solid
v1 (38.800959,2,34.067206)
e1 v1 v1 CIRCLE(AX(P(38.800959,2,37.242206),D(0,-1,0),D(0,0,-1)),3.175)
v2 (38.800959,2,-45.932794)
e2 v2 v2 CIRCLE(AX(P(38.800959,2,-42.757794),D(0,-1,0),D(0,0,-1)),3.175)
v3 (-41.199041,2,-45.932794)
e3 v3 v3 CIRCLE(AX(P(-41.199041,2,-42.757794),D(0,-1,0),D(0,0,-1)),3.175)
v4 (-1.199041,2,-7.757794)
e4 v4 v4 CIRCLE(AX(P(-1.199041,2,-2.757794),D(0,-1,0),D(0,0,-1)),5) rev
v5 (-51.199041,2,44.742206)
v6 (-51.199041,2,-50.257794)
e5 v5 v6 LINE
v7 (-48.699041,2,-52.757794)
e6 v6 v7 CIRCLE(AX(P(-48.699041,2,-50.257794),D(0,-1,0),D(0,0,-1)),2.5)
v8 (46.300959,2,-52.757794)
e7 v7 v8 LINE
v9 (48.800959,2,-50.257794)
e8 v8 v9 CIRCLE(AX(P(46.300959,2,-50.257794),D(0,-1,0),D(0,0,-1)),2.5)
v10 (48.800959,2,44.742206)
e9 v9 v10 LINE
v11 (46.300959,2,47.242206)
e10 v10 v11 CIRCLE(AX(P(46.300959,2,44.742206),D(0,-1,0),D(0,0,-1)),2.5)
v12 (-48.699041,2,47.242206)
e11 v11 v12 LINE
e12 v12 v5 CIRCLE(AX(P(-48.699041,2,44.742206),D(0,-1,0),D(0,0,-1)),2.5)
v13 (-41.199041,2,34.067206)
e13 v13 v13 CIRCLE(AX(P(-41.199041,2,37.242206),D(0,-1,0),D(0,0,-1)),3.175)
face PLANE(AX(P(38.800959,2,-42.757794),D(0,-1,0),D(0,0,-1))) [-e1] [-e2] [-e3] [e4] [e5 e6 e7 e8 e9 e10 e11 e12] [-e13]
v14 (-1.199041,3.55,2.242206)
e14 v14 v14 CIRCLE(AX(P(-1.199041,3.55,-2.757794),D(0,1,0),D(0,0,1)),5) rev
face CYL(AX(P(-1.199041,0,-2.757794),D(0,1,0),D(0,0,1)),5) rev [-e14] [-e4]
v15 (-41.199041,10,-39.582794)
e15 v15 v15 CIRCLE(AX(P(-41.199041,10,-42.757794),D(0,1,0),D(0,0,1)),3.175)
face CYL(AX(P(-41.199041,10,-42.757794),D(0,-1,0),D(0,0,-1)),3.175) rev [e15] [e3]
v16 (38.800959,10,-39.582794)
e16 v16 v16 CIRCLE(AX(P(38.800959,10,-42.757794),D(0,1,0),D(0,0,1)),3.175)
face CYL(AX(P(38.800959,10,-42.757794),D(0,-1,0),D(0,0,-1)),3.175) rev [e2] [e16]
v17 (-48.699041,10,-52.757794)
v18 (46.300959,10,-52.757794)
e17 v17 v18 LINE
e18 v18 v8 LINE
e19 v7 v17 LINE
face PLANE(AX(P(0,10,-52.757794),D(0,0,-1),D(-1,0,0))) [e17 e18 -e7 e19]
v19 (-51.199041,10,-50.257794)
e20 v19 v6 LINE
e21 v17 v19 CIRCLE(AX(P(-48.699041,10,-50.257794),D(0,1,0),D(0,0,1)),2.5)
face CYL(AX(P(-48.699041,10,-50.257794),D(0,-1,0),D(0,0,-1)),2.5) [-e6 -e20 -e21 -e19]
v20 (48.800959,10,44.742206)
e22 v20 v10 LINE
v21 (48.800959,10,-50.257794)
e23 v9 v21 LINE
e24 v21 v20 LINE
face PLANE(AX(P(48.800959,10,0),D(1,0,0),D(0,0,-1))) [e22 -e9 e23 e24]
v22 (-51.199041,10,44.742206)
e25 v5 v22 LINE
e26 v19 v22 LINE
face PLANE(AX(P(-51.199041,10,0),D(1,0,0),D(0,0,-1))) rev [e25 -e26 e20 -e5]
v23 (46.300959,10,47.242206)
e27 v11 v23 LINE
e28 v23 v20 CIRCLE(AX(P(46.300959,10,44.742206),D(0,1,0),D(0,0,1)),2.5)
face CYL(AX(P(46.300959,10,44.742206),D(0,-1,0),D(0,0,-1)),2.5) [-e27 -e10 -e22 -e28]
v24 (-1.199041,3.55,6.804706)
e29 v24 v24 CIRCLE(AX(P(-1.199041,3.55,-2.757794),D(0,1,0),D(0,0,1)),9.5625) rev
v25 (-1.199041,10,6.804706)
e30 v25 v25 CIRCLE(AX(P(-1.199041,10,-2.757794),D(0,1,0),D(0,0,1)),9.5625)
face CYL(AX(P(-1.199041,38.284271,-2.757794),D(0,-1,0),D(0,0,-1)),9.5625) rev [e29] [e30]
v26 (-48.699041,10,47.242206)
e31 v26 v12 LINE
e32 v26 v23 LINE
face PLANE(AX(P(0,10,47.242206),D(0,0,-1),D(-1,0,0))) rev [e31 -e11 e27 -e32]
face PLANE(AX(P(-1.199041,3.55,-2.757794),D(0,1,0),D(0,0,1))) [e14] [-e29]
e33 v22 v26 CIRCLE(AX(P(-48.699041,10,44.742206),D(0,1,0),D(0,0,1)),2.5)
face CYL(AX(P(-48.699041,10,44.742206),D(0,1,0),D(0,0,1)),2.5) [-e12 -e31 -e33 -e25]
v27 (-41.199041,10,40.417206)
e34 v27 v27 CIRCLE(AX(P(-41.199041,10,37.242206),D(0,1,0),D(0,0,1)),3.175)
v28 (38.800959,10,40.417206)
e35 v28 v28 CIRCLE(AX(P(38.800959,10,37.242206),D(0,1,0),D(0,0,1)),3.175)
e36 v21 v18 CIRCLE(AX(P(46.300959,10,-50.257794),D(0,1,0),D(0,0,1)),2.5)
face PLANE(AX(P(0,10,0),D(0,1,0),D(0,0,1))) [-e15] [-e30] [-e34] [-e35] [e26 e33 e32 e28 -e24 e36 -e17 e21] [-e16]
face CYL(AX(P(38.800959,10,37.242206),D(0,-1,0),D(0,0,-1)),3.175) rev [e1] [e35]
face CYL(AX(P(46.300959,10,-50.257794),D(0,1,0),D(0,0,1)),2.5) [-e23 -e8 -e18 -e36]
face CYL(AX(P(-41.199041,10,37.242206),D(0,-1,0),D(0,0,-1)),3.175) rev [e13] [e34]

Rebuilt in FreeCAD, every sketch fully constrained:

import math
import FreeCAD as App
import Part
import Sketcher
Q = App.Units.Quantity


def edges_at(feature, points):
    """Names of the edges that pass closest to the given points."""
    edges = feature.Shape.Edges
    near = lambda p: min(range(len(edges)), key=lambda i: edges[i].distToShape(Part.Vertex(*p))[0])
    return sorted({f"Edge{near(p) + 1}" for p in points})

doc = App.newDocument("Part")
body = doc.addObject("PartDesign::Body", "Body")

# Sketch on XZ plane
sketch1 = doc.addObject("Sketcher::SketchObject", "Sketch")
body.addObject(sketch1)
sketch1.AttachmentSupport = (doc.XZ_Plane, [""])
sketch1.MapMode = "FlatFace"
sketch1.addGeometry(Part.LineSegment(App.Vector(38.8, -52.8, 0), App.Vector(-41.2, -52.8, 0)), False)
sketch1.addGeometry(Part.ArcOfCircle(Part.Circle(App.Vector(-41.2, -42.8, 0), App.Vector(0, 0, 1), 10), math.radians(180), math.radians(270)), False)
sketch1.addGeometry(Part.LineSegment(App.Vector(-51.2, -42.8, 0), App.Vector(-51.2, 37.2, 0)), False)
sketch1.addGeometry(Part.ArcOfCircle(Part.Circle(App.Vector(-41.2, 37.2, 0), App.Vector(0, 0, 1), 10), math.radians(90), math.radians(180)), False)
sketch1.addGeometry(Part.LineSegment(App.Vector(-41.2, 47.2, 0), App.Vector(38.8, 47.2, 0)), False)
sketch1.addGeometry(Part.ArcOfCircle(Part.Circle(App.Vector(38.8, 37.2, 0), App.Vector(0, 0, 1), 10), math.radians(0), math.radians(90)), False)
sketch1.addGeometry(Part.LineSegment(App.Vector(48.8, 37.2, 0), App.Vector(48.8, -42.8, 0)), False)
sketch1.addGeometry(Part.ArcOfCircle(Part.Circle(App.Vector(38.8, -42.8, 0), App.Vector(0, 0, 1), 10), math.radians(-90), math.radians(0)), False)
sketch1.addGeometry(Part.Circle(App.Vector(38.8, 37.2, 0), App.Vector(0, 0, 1), 3.2), False)
sketch1.addGeometry(Part.Circle(App.Vector(0, 0, 0), App.Vector(0, 0, 1), 12.7), False)
sketch1.addGeometry(Part.Circle(App.Vector(-41.2, 37.2, 0), App.Vector(0, 0, 1), 3.2), False)
sketch1.addGeometry(Part.Circle(App.Vector(38.8, -42.8, 0), App.Vector(0, 0, 1), 3.2), False)
sketch1.addGeometry(Part.Circle(App.Vector(-41.2, -42.8, 0), App.Vector(0, 0, 1), 3.2), False)
sketch1.addConstraint(Sketcher.Constraint("Tangent", 0, 2, 1, 2))
sketch1.addConstraint(Sketcher.Constraint("Tangent", 1, 1, 2, 1))
sketch1.addConstraint(Sketcher.Constraint("Tangent", 2, 2, 3, 2))
sketch1.addConstraint(Sketcher.Constraint("Tangent", 3, 1, 4, 1))
sketch1.addConstraint(Sketcher.Constraint("Tangent", 4, 2, 5, 2))
sketch1.addConstraint(Sketcher.Constraint("Tangent", 5, 1, 6, 1))
sketch1.addConstraint(Sketcher.Constraint("Tangent", 6, 2, 7, 2))
sketch1.addConstraint(Sketcher.Constraint("Tangent", 7, 1, 0, 1))
sketch1.addConstraint(Sketcher.Constraint("Horizontal", 0))
sketch1.addConstraint(Sketcher.Constraint("Vertical", 2))
sketch1.addConstraint(Sketcher.Constraint("Horizontal", 4))
sketch1.addConstraint(Sketcher.Constraint("Vertical", 6))
sketch1.addConstraint(Sketcher.Constraint("Coincident", 9, 3, -1, 1))
sketch1.addConstraint(Sketcher.Constraint("Coincident", 8, 3, 5, 3))
sketch1.addConstraint(Sketcher.Constraint("Coincident", 10, 3, 3, 3))
sketch1.addConstraint(Sketcher.Constraint("Coincident", 11, 3, 7, 3))
sketch1.addConstraint(Sketcher.Constraint("Coincident", 12, 3, 1, 3))
sketch1.addConstraint(Sketcher.Constraint("Equal", 1, 3))
sketch1.addConstraint(Sketcher.Constraint("Equal", 3, 5))
sketch1.addConstraint(Sketcher.Constraint("Equal", 5, 7))
sketch1.addConstraint(Sketcher.Constraint("Equal", 8, 10))
sketch1.addConstraint(Sketcher.Constraint("Equal", 10, 11))
sketch1.addConstraint(Sketcher.Constraint("Equal", 11, 12))
sketch1.addConstraint(Sketcher.Constraint("Equal", 4, 2))
sketch1.addConstraint(Sketcher.Constraint("Radius", 1, Q("10 mm")))
sketch1.addConstraint(Sketcher.Constraint("Diameter", 9, Q("25.4 mm")))
sketch1.addConstraint(Sketcher.Constraint("Diameter", 8, Q("6.35 mm")))
sketch1.addConstraint(Sketcher.Constraint("DistanceX", 0, 2, 0, 1, Q("80 mm")))
sketch1.addConstraint(Sketcher.Constraint("DistanceX", 1, 3, -1, 1, Q("41.199041 mm")))
sketch1.addConstraint(Sketcher.Constraint("DistanceY", 1, 3, -1, 1, Q("42.757794 mm")))
pad1 = doc.addObject("PartDesign::Pad", "Pad")
body.addObject(pad1)
pad1.Profile = sketch1
pad1.Length = 10
pad1.Reversed = True

# Sketch on XZ plane
sketch2 = doc.addObject("Sketcher::SketchObject", "Sketch001")
body.addObject(sketch2)
sketch2.AttachmentSupport = (doc.XZ_Plane, [""])
sketch2.MapMode = "FlatFace"
sketch2.addGeometry(Part.Circle(App.Vector(0, 0, 0), App.Vector(0, 0, 1), 13), False)
sketch2.addGeometry(Part.Circle(App.Vector(0, 0, 0), App.Vector(0, 0, 1), 6), False)
sketch2.addConstraint(Sketcher.Constraint("Coincident", 0, 3, -1, 1))
sketch2.addConstraint(Sketcher.Constraint("Coincident", 1, 3, -1, 1))
sketch2.addConstraint(Sketcher.Constraint("Diameter", 0, Q("25.4 mm")))
sketch2.addConstraint(Sketcher.Constraint("Diameter", 1, Q("12.7 mm")))
pad2 = doc.addObject("PartDesign::Pad", "Pad001")
body.addObject(pad2)
pad2.Profile = sketch2
pad2.Length = 2.5
pad2.Reversed = True

# Sketch on XZ plane
sketch3 = doc.addObject("Sketcher::SketchObject", "Sketch002")
body.addObject(sketch3)
sketch3.AttachmentSupport = (doc.XZ_Plane, [""])
sketch3.MapMode = "FlatFace"
sketch3.AttachmentOffset = App.Placement(App.Vector(0, 0, -10), App.Rotation())
sketch3.addGeometry(Part.Circle(App.Vector(0, 0, 0), App.Vector(0, 0, 1), 13), False)
sketch3.addConstraint(Sketcher.Constraint("Coincident", 0, 3, -1, 1))
sketch3.addConstraint(Sketcher.Constraint("Diameter", 0, Q("25.4 mm")))
pad3 = doc.addObject("PartDesign::Pad", "Pad002")
body.addObject(pad3)
pad3.Profile = sketch3
pad3.Length = 10

# Sketch on XZ plane
sketch4 = doc.addObject("Sketcher::SketchObject", "Sketch003")
body.addObject(sketch4)
sketch4.AttachmentSupport = (doc.XZ_Plane, [""])
sketch4.MapMode = "FlatFace"
sketch4.AttachmentOffset = App.Placement(App.Vector(0, 0, -10), App.Rotation())
sketch4.addGeometry(Part.Circle(App.Vector(-1, -3, 0), App.Vector(0, 0, 1), 5), False)
sketch4.addConstraint(Sketcher.Constraint("Diameter", 0, Q("10 mm")))
sketch4.addConstraint(Sketcher.Constraint("DistanceX", 0, 3, -1, 1, Q("1.199041 mm")))
sketch4.addConstraint(Sketcher.Constraint("DistanceY", 0, 3, -1, 1, Q("2.757794 mm")))
pocket1 = doc.addObject("PartDesign::Pocket", "Pocket")
body.addObject(pocket1)
pocket1.Profile = sketch4
pocket1.Length = 10
pocket1.Reversed = True

# Sketch on XZ plane
sketch5 = doc.addObject("Sketcher::SketchObject", "Sketch004")
body.addObject(sketch5)
sketch5.AttachmentSupport = (doc.XZ_Plane, [""])
sketch5.MapMode = "FlatFace"
sketch5.AttachmentOffset = App.Placement(App.Vector(0, 0, -8.55), App.Rotation())
sketch5.addGeometry(Part.Circle(App.Vector(-1, -3, 0), App.Vector(0, 0, 1), 10), False)
sketch5.addConstraint(Sketcher.Constraint("Diameter", 0, Q("20 mm")))
sketch5.addConstraint(Sketcher.Constraint("DistanceX", 0, 3, -1, 1, Q("1.199041 mm")))
sketch5.addConstraint(Sketcher.Constraint("DistanceY", 0, 3, -1, 1, Q("2.757794 mm")))
pocket2 = doc.addObject("PartDesign::Pocket", "Pocket001")
body.addObject(pocket2)
pocket2.Profile = sketch5
pocket2.Length = 5
pocket2.Reversed = True

# Sketch on XZ plane
sketch6 = doc.addObject("Sketcher::SketchObject", "Sketch005")
body.addObject(sketch6)
sketch6.AttachmentSupport = (doc.XZ_Plane, [""])
sketch6.MapMode = "FlatFace"
sketch6.addGeometry(Part.LineSegment(App.Vector(49, -43, 0), App.Vector(49, 37, 0)), False)
sketch6.addGeometry(Part.ArcOfCircle(Part.Circle(App.Vector(39, 37, 0), App.Vector(0, 0, 1), 10), math.radians(0), math.radians(90)), False)
sketch6.addGeometry(Part.LineSegment(App.Vector(39, 47, 0), App.Vector(-41, 47, 0)), False)
sketch6.addGeometry(Part.ArcOfCircle(Part.Circle(App.Vector(-41, 37, 0), App.Vector(0, 0, 1), 10), math.radians(90), math.radians(180)), False)
sketch6.addGeometry(Part.LineSegment(App.Vector(-51, 37, 0), App.Vector(-51, -43, 0)), False)
sketch6.addGeometry(Part.ArcOfCircle(Part.Circle(App.Vector(-41, -43, 0), App.Vector(0, 0, 1), 10), math.radians(180), math.radians(270)), False)
sketch6.addGeometry(Part.LineSegment(App.Vector(-41, -53, 0), App.Vector(39, -53, 0)), False)
sketch6.addGeometry(Part.ArcOfCircle(Part.Circle(App.Vector(39, -43, 0), App.Vector(0, 0, 1), 10), math.radians(-90), math.radians(0)), False)
sketch6.addConstraint(Sketcher.Constraint("Tangent", 0, 2, 1, 1))
sketch6.addConstraint(Sketcher.Constraint("Tangent", 1, 2, 2, 1))
sketch6.addConstraint(Sketcher.Constraint("Tangent", 2, 2, 3, 1))
sketch6.addConstraint(Sketcher.Constraint("Tangent", 3, 2, 4, 1))
sketch6.addConstraint(Sketcher.Constraint("Tangent", 4, 2, 5, 1))
sketch6.addConstraint(Sketcher.Constraint("Tangent", 5, 2, 6, 1))
sketch6.addConstraint(Sketcher.Constraint("Tangent", 6, 2, 7, 1))
sketch6.addConstraint(Sketcher.Constraint("Tangent", 7, 2, 0, 1))
sketch6.addConstraint(Sketcher.Constraint("Vertical", 0))
sketch6.addConstraint(Sketcher.Constraint("Horizontal", 2))
sketch6.addConstraint(Sketcher.Constraint("Vertical", 4))
sketch6.addConstraint(Sketcher.Constraint("Horizontal", 6))
sketch6.addConstraint(Sketcher.Constraint("Equal", 1, 3))
sketch6.addConstraint(Sketcher.Constraint("Equal", 3, 5))
sketch6.addConstraint(Sketcher.Constraint("Equal", 5, 7))
sketch6.addConstraint(Sketcher.Constraint("Equal", 6, 0))
sketch6.addConstraint(Sketcher.Constraint("Radius", 1, Q("10 mm")))
sketch6.addConstraint(Sketcher.Constraint("DistanceX", 2, 2, 2, 1, Q("80 mm")))
sketch6.addConstraint(Sketcher.Constraint("DistanceX", -1, 1, 1, 3, Q("38.800959 mm")))
sketch6.addConstraint(Sketcher.Constraint("DistanceY", -1, 1, 1, 3, Q("37.242206 mm")))
pocket3 = doc.addObject("PartDesign::Pocket", "Pocket002")
body.addObject(pocket3)
pocket3.Profile = sketch6
pocket3.Length = 2

# Sketch on XZ plane
sketch7 = doc.addObject("Sketcher::SketchObject", "Sketch006")
body.addObject(sketch7)
sketch7.AttachmentSupport = (doc.XZ_Plane, [""])
sketch7.MapMode = "FlatFace"
sketch7.AttachmentOffset = App.Placement(App.Vector(0, 0, -10), App.Rotation())
sketch7.addGeometry(Part.Circle(App.Vector(-1, -3, 0), App.Vector(0, 0, 1), 10), False)
sketch7.addConstraint(Sketcher.Constraint("Diameter", 0, Q("20 mm")))
sketch7.addConstraint(Sketcher.Constraint("DistanceX", 0, 3, -1, 1, Q("1.199041 mm")))
sketch7.addConstraint(Sketcher.Constraint("DistanceY", 0, 3, -1, 1, Q("2.757794 mm")))
pocket4 = doc.addObject("PartDesign::Pocket", "Pocket003")
body.addObject(pocket4)
pocket4.Profile = sketch7
pocket4.Length = 6.45
pocket4.Reversed = True

# Sketch on XZ plane
sketch8 = doc.addObject("Sketcher::SketchObject", "Sketch007")
body.addObject(sketch8)
sketch8.AttachmentSupport = (doc.XZ_Plane, [""])
sketch8.MapMode = "FlatFace"
sketch8.AttachmentOffset = App.Placement(App.Vector(0, 0, -10), App.Rotation())
sketch8.addGeometry(Part.Circle(App.Vector(-1, -3, 0), App.Vector(0, 0, 1), 10), False)
sketch8.addGeometry(Part.Circle(App.Vector(-1, -3, 0), App.Vector(0, 0, 1), 10), False)
sketch8.addConstraint(Sketcher.Constraint("Coincident", 1, 3, 0, 3))
sketch8.addConstraint(Sketcher.Constraint("Diameter", 0, Q("20 mm")))
sketch8.addConstraint(Sketcher.Constraint("Diameter", 1, Q("19.125 mm")))
sketch8.addConstraint(Sketcher.Constraint("DistanceX", 0, 3, -1, 1, Q("1.199041 mm")))
sketch8.addConstraint(Sketcher.Constraint("DistanceY", 0, 3, -1, 1, Q("2.757794 mm")))
pad4 = doc.addObject("PartDesign::Pad", "Pad003")
body.addObject(pad4)
pad4.Profile = sketch8
pad4.Length = 6.45

# Sketch on XZ plane
sketch9 = doc.addObject("Sketcher::SketchObject", "Sketch008")
body.addObject(sketch9)
sketch9.AttachmentSupport = (doc.XZ_Plane, [""])
sketch9.MapMode = "FlatFace"
sketch9.AttachmentOffset = App.Placement(App.Vector(0, 0, -2), App.Rotation())
sketch9.addGeometry(Part.LineSegment(App.Vector(-51, -53, 0), App.Vector(-51, -43, 0)), False)
sketch9.addGeometry(Part.ArcOfCircle(Part.Circle(App.Vector(-41, -43, 0), App.Vector(0, 0, 1), 10), math.radians(180), math.radians(270)), False)
sketch9.addGeometry(Part.LineSegment(App.Vector(-41, -53, 0), App.Vector(-51, -53, 0)), False)
sketch9.addGeometry(Part.LineSegment(App.Vector(49, -53, 0), App.Vector(39, -53, 0)), False)
sketch9.addGeometry(Part.ArcOfCircle(Part.Circle(App.Vector(39, -43, 0), App.Vector(0, 0, 1), 10), math.radians(-90), math.radians(0)), False)
sketch9.addGeometry(Part.LineSegment(App.Vector(49, -43, 0), App.Vector(49, -53, 0)), False)
sketch9.addGeometry(Part.LineSegment(App.Vector(-51, 37, 0), App.Vector(-51, 47, 0)), False)
sketch9.addGeometry(Part.LineSegment(App.Vector(-51, 47, 0), App.Vector(-41, 47, 0)), False)
sketch9.addGeometry(Part.ArcOfCircle(Part.Circle(App.Vector(-41, 37, 0), App.Vector(0, 0, 1), 10), math.radians(90), math.radians(180)), False)
sketch9.addGeometry(Part.LineSegment(App.Vector(49, 47, 0), App.Vector(49, 37, 0)), False)
sketch9.addGeometry(Part.ArcOfCircle(Part.Circle(App.Vector(39, 37, 0), App.Vector(0, 0, 1), 10), math.radians(0), math.radians(90)), False)
sketch9.addGeometry(Part.LineSegment(App.Vector(39, 47, 0), App.Vector(49, 47, 0)), False)
sketch9.addConstraint(Sketcher.Constraint("Tangent", 0, 2, 1, 1))
sketch9.addConstraint(Sketcher.Constraint("Tangent", 1, 2, 2, 1))
sketch9.addConstraint(Sketcher.Constraint("Coincident", 2, 2, 0, 1))
sketch9.addConstraint(Sketcher.Constraint("Tangent", 3, 2, 4, 1))
sketch9.addConstraint(Sketcher.Constraint("Tangent", 4, 2, 5, 1))
sketch9.addConstraint(Sketcher.Constraint("Coincident", 5, 2, 3, 1))
sketch9.addConstraint(Sketcher.Constraint("Coincident", 6, 2, 7, 1))
sketch9.addConstraint(Sketcher.Constraint("Tangent", 7, 2, 8, 1))
sketch9.addConstraint(Sketcher.Constraint("Tangent", 8, 2, 6, 1))
sketch9.addConstraint(Sketcher.Constraint("Tangent", 9, 2, 10, 1))
sketch9.addConstraint(Sketcher.Constraint("Tangent", 10, 2, 11, 1))
sketch9.addConstraint(Sketcher.Constraint("Coincident", 11, 2, 9, 1))
sketch9.addConstraint(Sketcher.Constraint("Vertical", 0))
sketch9.addConstraint(Sketcher.Constraint("Horizontal", 2))
sketch9.addConstraint(Sketcher.Constraint("Horizontal", 3))
sketch9.addConstraint(Sketcher.Constraint("Vertical", 5))
sketch9.addConstraint(Sketcher.Constraint("Vertical", 6))
sketch9.addConstraint(Sketcher.Constraint("Horizontal", 7))
sketch9.addConstraint(Sketcher.Constraint("Vertical", 9))
sketch9.addConstraint(Sketcher.Constraint("Horizontal", 11))
sketch9.addConstraint(Sketcher.Constraint("Equal", 1, 4))
sketch9.addConstraint(Sketcher.Constraint("Equal", 4, 8))
sketch9.addConstraint(Sketcher.Constraint("Equal", 8, 10))
sketch9.addConstraint(Sketcher.Constraint("Horizontal", 1, 3, 4, 3))
sketch9.addConstraint(Sketcher.Constraint("Horizontal", 8, 3, 10, 3))
sketch9.addConstraint(Sketcher.Constraint("Vertical", 1, 3, 8, 3))
sketch9.addConstraint(Sketcher.Constraint("Vertical", 4, 3, 10, 3))
sketch9.addConstraint(Sketcher.Constraint("Radius", 1, Q("10 mm")))
sketch9.addConstraint(Sketcher.Constraint("DistanceX", 1, 3, 4, 3, Q("80 mm")))
sketch9.addConstraint(Sketcher.Constraint("DistanceY", 1, 3, 8, 3, Q("80 mm")))
sketch9.addConstraint(Sketcher.Constraint("DistanceX", 1, 3, -1, 1, Q("41.199041 mm")))
sketch9.addConstraint(Sketcher.Constraint("DistanceY", 1, 3, -1, 1, Q("42.757794 mm")))
pad5 = doc.addObject("PartDesign::Pad", "Pad004")
body.addObject(pad5)
pad5.Profile = sketch9
pad5.Length = 8
pad5.Reversed = True
doc.recompute()

fillet = doc.addObject("PartDesign::Fillet", "Fillet")
body.addObject(fillet)
fillet.Base = (pad5, edges_at(pad5, [
    (-51.199, 6, -52.758),
    (48.801, 6, -52.758),
    (48.801, 6, 47.242),
    (-51.199, 6, 47.242),
]))
fillet.Radius = 2.5

doc.recompute()
